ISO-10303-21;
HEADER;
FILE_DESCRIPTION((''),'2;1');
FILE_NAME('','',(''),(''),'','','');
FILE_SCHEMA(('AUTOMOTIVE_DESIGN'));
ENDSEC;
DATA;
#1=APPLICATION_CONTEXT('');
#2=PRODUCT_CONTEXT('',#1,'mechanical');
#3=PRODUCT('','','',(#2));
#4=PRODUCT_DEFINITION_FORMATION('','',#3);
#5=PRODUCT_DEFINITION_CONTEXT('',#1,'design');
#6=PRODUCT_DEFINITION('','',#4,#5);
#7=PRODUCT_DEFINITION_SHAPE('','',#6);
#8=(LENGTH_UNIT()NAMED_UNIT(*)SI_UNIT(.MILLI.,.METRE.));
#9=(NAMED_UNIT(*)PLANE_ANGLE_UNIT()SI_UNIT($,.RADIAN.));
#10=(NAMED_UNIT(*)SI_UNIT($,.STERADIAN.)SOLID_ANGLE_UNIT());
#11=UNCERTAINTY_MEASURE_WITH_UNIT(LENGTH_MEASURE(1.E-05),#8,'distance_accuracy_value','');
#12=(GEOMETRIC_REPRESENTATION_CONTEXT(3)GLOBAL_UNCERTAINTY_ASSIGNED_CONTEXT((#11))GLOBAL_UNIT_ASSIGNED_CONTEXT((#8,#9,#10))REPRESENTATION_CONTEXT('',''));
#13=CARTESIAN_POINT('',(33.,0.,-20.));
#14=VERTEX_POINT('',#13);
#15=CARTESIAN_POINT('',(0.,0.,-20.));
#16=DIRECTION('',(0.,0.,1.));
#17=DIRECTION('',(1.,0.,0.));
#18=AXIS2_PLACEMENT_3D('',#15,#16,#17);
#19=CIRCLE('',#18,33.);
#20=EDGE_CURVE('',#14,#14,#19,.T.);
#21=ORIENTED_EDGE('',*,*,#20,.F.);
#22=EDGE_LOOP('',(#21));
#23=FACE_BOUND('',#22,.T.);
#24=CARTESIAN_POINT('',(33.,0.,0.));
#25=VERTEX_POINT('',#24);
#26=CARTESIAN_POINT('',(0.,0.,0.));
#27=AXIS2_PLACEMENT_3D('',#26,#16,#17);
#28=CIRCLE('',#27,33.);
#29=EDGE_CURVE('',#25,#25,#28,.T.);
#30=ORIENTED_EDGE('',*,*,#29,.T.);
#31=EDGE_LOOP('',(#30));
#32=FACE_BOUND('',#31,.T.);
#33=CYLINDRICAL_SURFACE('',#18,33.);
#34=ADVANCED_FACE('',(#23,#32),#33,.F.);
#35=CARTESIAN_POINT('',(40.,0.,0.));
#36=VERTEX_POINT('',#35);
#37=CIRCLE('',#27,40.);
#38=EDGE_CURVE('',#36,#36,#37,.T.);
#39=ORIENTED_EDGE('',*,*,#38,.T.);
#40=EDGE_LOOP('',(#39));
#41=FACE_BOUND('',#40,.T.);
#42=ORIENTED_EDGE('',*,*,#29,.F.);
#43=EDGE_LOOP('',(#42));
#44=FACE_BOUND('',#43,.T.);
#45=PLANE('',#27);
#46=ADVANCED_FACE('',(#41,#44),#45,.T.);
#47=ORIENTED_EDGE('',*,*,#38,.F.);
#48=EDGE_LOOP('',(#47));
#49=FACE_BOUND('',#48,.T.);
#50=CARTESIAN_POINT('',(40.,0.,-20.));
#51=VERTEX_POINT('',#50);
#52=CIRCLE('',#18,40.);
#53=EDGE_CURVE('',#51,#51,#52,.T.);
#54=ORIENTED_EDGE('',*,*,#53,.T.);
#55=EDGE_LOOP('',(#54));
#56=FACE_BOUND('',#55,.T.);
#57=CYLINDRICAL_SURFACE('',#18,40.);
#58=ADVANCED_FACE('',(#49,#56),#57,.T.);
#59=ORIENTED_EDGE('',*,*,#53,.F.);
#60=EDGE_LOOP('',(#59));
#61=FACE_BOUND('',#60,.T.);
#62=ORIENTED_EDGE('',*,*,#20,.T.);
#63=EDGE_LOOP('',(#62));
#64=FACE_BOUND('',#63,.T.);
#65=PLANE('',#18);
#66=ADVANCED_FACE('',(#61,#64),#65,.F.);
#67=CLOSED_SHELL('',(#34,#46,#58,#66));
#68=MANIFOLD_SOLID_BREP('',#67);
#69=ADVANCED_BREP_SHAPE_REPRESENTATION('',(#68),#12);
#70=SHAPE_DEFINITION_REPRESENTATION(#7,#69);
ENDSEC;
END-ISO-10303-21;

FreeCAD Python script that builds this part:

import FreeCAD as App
import Part
import Sketcher

doc = App.newDocument("Part")
body = doc.addObject("PartDesign::Body", "Body")

# Sketch on XY plane
sketch1 = body.newObject("Sketcher::SketchObject", "Sketch")
sketch1.AttachmentSupport = (doc.getObject("XY_Plane"), [""])
sketch1.MapMode = "FlatFace"
sketch1.addGeometry([
    Part.Circle(App.Vector(0, 0, 0), App.Vector(0, 0, 1), 40),
    Part.Circle(App.Vector(0, 0, 0), App.Vector(0, 0, 1), 33),
], False)
sketch1.addConstraint([
    Sketcher.Constraint("Coincident", 0, 3, -1, 1),
    Sketcher.Constraint("Coincident", 1, 3, -1, 1),
    Sketcher.Constraint("Diameter", 0, 80.0),
    Sketcher.Constraint("Diameter", 1, 66.0),
])
pad1 = body.newObject("PartDesign::Pad", "Pad")
pad1.Profile = sketch1
pad1.Length = 20
pad1.Reversed = True

doc.recompute()
